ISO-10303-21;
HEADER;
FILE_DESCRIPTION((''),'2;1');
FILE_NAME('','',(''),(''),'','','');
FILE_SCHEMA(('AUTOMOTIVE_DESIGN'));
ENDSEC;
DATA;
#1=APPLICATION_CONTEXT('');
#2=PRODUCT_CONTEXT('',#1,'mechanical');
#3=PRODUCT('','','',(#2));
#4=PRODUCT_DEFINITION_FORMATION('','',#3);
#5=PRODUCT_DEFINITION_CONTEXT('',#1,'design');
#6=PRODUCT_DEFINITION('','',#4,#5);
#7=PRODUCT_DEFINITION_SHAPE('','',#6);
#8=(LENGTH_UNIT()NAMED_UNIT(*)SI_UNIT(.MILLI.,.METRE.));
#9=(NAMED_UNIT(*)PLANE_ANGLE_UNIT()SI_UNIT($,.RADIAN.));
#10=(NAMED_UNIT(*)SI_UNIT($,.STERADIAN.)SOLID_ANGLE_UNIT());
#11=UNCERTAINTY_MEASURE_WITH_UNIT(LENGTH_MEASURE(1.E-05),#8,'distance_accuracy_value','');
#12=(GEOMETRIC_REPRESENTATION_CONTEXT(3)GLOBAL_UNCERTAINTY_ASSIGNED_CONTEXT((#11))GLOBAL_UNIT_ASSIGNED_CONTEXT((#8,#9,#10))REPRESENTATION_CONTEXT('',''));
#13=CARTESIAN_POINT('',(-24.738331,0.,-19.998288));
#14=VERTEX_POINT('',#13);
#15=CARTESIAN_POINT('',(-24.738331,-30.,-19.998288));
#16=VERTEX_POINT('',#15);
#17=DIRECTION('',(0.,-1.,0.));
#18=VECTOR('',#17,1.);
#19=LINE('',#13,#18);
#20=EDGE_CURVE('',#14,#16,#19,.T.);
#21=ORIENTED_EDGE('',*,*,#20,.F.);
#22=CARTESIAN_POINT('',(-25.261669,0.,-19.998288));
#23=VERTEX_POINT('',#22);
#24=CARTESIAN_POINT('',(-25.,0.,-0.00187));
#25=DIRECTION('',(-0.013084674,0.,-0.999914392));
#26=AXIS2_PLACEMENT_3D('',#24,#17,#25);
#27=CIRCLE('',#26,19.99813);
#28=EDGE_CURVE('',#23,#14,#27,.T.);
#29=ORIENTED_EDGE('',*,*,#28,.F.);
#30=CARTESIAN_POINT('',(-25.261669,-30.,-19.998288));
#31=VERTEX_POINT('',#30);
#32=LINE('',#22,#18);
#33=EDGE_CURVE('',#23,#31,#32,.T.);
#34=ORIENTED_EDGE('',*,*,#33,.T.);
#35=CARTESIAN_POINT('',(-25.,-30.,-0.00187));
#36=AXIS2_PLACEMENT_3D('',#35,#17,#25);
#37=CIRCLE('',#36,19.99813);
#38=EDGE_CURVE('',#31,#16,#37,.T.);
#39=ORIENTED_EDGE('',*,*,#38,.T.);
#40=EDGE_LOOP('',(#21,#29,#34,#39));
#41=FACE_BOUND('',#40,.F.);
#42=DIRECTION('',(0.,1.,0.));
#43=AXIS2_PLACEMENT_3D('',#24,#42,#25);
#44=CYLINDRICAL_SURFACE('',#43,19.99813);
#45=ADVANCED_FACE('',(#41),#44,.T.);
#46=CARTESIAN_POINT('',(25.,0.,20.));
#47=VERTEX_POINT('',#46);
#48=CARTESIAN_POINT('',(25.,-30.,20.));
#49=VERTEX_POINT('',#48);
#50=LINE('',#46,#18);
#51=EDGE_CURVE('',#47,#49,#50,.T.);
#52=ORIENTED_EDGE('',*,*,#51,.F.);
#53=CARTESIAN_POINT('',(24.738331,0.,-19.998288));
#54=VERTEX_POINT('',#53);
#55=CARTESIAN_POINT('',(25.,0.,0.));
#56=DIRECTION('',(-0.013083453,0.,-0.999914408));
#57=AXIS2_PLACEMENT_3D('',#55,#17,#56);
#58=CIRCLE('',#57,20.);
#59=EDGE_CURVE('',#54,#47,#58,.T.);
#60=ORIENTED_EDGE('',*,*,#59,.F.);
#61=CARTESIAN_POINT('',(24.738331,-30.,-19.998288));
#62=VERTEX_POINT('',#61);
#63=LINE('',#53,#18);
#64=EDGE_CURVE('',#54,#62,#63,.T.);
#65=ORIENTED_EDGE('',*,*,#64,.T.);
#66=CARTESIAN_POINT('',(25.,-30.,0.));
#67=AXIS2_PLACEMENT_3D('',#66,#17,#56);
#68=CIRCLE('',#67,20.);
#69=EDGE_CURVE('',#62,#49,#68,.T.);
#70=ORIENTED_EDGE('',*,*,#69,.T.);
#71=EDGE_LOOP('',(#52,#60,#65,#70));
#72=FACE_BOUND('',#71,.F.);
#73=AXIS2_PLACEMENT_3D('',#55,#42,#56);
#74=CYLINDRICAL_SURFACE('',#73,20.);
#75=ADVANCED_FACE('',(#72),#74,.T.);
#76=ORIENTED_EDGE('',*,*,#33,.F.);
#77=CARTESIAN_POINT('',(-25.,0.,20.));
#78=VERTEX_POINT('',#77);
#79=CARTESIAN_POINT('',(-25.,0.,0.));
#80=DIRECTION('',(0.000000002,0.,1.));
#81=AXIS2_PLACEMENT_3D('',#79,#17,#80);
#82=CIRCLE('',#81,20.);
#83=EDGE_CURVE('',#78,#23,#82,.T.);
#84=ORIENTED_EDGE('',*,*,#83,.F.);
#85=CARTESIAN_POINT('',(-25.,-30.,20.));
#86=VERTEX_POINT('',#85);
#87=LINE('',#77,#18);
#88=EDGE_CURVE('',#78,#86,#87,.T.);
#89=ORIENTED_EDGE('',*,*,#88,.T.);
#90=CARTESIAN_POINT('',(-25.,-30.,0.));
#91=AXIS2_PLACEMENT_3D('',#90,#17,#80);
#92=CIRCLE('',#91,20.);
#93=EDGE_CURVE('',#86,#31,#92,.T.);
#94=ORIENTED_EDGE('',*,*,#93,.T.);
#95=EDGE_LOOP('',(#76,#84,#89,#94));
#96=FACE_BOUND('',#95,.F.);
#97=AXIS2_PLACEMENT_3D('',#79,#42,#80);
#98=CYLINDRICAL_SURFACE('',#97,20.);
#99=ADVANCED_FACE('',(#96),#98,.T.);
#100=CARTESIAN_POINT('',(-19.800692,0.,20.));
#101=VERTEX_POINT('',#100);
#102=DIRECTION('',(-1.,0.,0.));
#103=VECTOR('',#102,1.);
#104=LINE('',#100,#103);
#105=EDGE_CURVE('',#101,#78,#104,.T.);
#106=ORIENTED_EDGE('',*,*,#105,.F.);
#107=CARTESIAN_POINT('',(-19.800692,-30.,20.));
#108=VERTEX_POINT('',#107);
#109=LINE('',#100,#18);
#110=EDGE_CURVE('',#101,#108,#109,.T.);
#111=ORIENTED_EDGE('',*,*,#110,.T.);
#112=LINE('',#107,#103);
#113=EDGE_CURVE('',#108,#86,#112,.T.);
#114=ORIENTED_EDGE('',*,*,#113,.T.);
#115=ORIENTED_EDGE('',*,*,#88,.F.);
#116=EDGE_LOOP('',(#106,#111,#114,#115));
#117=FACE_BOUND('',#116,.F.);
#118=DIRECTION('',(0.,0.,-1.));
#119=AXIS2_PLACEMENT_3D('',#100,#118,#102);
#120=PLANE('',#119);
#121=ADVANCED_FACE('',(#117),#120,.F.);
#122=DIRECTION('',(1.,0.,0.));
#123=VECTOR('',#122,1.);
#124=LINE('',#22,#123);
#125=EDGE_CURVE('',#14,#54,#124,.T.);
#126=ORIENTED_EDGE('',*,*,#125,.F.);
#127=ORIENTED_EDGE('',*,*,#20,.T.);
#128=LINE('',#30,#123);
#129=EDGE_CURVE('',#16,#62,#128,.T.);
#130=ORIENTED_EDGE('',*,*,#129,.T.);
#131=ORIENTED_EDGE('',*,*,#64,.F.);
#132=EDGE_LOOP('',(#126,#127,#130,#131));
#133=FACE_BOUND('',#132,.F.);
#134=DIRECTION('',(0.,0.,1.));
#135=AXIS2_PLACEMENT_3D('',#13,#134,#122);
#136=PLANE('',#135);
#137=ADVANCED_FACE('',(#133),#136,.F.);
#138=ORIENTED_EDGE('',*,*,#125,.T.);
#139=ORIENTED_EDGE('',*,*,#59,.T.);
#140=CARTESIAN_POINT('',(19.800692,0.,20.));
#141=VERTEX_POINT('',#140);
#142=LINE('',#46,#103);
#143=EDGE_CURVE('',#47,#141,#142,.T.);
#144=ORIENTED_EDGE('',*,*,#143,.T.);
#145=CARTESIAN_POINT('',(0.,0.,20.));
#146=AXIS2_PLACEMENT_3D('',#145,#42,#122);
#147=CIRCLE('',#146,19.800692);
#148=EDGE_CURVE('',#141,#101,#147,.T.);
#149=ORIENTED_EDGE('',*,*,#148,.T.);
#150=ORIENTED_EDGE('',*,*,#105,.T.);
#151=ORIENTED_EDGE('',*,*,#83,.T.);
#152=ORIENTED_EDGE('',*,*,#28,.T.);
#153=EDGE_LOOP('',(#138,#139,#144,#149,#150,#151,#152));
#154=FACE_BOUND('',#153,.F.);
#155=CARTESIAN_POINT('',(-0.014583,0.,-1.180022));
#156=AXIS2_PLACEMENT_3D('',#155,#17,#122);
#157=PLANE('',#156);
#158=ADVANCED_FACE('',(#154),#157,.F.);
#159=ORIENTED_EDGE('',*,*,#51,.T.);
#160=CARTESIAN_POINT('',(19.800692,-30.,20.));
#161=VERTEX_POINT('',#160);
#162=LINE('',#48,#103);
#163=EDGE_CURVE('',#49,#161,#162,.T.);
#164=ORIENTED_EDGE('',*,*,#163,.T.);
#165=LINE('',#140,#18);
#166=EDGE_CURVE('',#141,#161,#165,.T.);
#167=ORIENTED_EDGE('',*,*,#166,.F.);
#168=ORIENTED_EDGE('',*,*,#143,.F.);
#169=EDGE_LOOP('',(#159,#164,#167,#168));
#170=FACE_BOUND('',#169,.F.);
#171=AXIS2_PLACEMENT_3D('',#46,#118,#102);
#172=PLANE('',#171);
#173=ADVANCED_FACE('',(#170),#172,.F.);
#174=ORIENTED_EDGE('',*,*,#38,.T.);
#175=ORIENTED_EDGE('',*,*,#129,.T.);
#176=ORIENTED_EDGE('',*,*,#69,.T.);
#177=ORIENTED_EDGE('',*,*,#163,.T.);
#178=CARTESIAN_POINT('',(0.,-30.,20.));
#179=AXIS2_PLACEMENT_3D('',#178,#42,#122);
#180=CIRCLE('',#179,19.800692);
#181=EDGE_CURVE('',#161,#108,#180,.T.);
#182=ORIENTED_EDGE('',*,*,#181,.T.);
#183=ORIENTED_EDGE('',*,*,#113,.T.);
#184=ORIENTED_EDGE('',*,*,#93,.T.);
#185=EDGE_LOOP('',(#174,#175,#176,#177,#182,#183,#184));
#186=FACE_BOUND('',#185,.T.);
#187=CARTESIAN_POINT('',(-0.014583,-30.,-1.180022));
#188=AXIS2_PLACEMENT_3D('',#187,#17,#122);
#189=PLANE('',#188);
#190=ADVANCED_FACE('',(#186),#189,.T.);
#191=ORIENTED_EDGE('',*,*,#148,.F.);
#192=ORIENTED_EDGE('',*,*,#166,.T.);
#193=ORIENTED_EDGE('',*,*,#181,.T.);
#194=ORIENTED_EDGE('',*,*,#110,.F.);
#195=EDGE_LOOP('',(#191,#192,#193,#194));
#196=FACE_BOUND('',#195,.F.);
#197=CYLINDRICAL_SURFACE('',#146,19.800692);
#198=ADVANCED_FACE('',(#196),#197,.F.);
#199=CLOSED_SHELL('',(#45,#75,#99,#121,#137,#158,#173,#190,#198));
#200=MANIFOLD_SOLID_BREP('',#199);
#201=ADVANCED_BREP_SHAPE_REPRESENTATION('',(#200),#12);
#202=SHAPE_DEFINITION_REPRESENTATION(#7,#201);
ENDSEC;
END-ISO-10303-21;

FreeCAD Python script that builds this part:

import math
import FreeCAD as App
import Part
import Sketcher
Q = App.Units.Quantity

doc = App.newDocument("Part")
params = doc.addObject("Spreadsheet::Sheet", "Params")
for row, (alias, value) in enumerate([
    ("sketch1_radius", "20 mm"),
    ("sketch1_radius2", "20 mm"),
    ("pad1_length", "30 mm"),
], start=1):
    params.set(f"A{row}", alias)
    params.set(f"B{row}", "=" + value)
    params.setAlias(f"B{row}", alias)

body = doc.addObject("PartDesign::Body", "Body")

sketch1 = doc.addObject("Sketcher::SketchObject", "Sketch")
body.addObject(sketch1)
sketch1.AttachmentSupport = (doc.XZ_Plane, [""])
sketch1.MapMode = "FlatFace"
sketch1.addGeometry(Part.LineSegment(App.Vector(-19.800692, 20, 0), App.Vector(-25, 20, 0)), False)
sketch1.addGeometry(Part.ArcOfCircle(Part.Circle(App.Vector(-25, 0, 0), App.Vector(0, 0, 1), 20), math.radians(90), math.radians(269.250352)), False)
sketch1.addGeometry(Part.ArcOfCircle(Part.Circle(App.Vector(-25, -0.00187, 0), App.Vector(0, 0, 1), 19.99813), math.radians(-90.749718), math.radians(-89.250282)), False)
sketch1.addGeometry(Part.LineSegment(App.Vector(-24.738331, -19.998288, 0), App.Vector(24.738331, -19.998288, 0)), False)
sketch1.addGeometry(Part.ArcOfCircle(Part.Circle(App.Vector(25, 0, 0), App.Vector(0, 0, 1), 20), math.radians(-90.749648), math.radians(90)), False)
sketch1.addGeometry(Part.LineSegment(App.Vector(25, 20, 0), App.Vector(19.800692, 20, 0)), False)
sketch1.addGeometry(Part.ArcOfCircle(Part.Circle(App.Vector(0, 20, 0), App.Vector(0, 0, 1), 19.800692), math.radians(180), math.radians(360)), False)
sketch1.addConstraint(Sketcher.Constraint("Coincident", 0, 2, 1, 1))
sketch1.addConstraint(Sketcher.Constraint("Coincident", 1, 2, 2, 1))
sketch1.addConstraint(Sketcher.Constraint("Coincident", 2, 2, 3, 1))
sketch1.addConstraint(Sketcher.Constraint("Coincident", 3, 2, 4, 1))
sketch1.addConstraint(Sketcher.Constraint("Coincident", 4, 2, 5, 1))
sketch1.addConstraint(Sketcher.Constraint("Coincident", 5, 2, 6, 2))
sketch1.addConstraint(Sketcher.Constraint("Coincident", 6, 1, 0, 1))
sketch1.addConstraint(Sketcher.Constraint("Horizontal", 0))
sketch1.addConstraint(Sketcher.Constraint("Horizontal", 3))
sketch1.addConstraint(Sketcher.Constraint("Horizontal", 5))
sketch1.addConstraint(Sketcher.Constraint("PointOnObject", 1, 3, -1))
sketch1.addConstraint(Sketcher.Constraint("PointOnObject", 4, 3, -1))
sketch1.addConstraint(Sketcher.Constraint("PointOnObject", 6, 3, -2))
sketch1.addConstraint(Sketcher.Constraint("Radius", 1, Q("20 mm")))
sketch1.addConstraint(Sketcher.Constraint("Radius", 4, Q("20 mm")))
sketch1.addConstraint(Sketcher.Constraint("DistanceX", 1, 3, -1, 1, Q("25 mm")))
sketch1.addConstraint(Sketcher.Constraint("DistanceX", 2, 3, -1, 1, Q("25 mm")))
sketch1.addConstraint(Sketcher.Constraint("DistanceX", -1, 1, 4, 3, Q("25 mm")))
sketch1.addConstraint(Sketcher.Constraint("DistanceY", -1, 1, 6, 3, Q("20 mm")))
sketch1.addConstraint(Sketcher.Constraint("DistanceX", 0, 2, -1, 1, Q("25 mm")))
sketch1.addConstraint(Sketcher.Constraint("DistanceX", -1, 1, 4, 2, Q("25 mm")))
sketch1.addConstraint(Sketcher.Constraint("DistanceX", 1, 2, 3, 2, Q("50 mm")))
sketch1.addConstraint(Sketcher.Constraint("Radius", 2, Q("19.99813 mm")))
sketch1.addConstraint(Sketcher.Constraint("Radius", 6, Q("19.800692 mm")))
sketch1.addConstraint(Sketcher.Constraint("DistanceX", 3, 1, 3, 2, Q("49.476662 mm")))
sketch1.setExpression("Constraints[13]", "Params.sketch1_radius")
sketch1.setExpression("Constraints[14]", "Params.sketch1_radius2")
pad1 = doc.addObject("PartDesign::Pad", "Pad")
body.addObject(pad1)
pad1.Profile = sketch1
pad1.setExpression("Length", "Params.pad1_length")

doc.recompute()
